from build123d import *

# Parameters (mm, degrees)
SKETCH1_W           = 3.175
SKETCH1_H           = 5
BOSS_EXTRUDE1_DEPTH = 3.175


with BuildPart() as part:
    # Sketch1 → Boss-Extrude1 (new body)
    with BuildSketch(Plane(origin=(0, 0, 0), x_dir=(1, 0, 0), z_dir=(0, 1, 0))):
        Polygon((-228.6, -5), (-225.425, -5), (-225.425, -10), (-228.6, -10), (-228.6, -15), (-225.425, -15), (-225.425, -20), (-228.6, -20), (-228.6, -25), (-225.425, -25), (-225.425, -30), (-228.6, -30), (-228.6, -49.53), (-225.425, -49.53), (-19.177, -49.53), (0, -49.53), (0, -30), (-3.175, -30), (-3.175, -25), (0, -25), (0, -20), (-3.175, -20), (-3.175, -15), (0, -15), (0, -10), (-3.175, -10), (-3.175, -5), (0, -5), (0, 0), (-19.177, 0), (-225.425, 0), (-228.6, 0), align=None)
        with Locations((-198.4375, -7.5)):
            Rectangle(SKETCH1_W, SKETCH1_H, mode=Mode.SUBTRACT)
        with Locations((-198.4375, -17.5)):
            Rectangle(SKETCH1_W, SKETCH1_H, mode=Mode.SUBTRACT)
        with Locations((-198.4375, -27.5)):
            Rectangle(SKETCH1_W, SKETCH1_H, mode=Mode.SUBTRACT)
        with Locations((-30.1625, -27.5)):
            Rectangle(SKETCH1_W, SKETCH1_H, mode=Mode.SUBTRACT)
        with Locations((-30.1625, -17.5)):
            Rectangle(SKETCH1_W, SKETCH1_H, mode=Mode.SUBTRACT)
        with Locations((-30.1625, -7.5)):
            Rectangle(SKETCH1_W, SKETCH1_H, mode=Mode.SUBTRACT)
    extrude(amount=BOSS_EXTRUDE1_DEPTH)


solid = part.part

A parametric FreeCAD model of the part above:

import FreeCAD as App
import Part
import Sketcher
from FreeCAD import Vector
Q = App.Units.Quantity


def add_polygon(sketch, points):
    """Adds a closed chain of lines whose ends are joined by coincident constraints."""
    first, n = sketch.GeometryCount, len(points)
    for a, b in zip(points, points[1:] + points[:1]):
        sketch.addGeometry(Part.LineSegment(App.Vector(*a, 0), App.Vector(*b, 0)), False)
    for i in range(n):
        sketch.addConstraint(Sketcher.Constraint("Coincident", first + i, 2, first + (i + 1) % n, 1))

doc = App.newDocument("Part")
params = doc.addObject("Spreadsheet::Sheet", "Params")
for row, (alias, value) in enumerate([
    ("sketch1_width", "9 in"),
    ("sketch1_width2", "0.125 in"),
    ("pad1_length", "0.125 in"),
], start=1):
    params.set(f"A{row}", alias)
    params.set(f"B{row}", "=" + value)
    params.setAlias(f"B{row}", alias)

body = doc.addObject("PartDesign::Body", "Body")

# Sketch on XZ plane
sketch1 = body.newObject("Sketcher::SketchObject", "Sketch")
sketch1.AttachmentSupport = (doc.getObject("XZ_Plane"), [""])
sketch1.MapMode = "FlatFace"
add_polygon(sketch1, [(-228.6, 5), (-225.4, 5), (-225.4, 10), (-228.6, 10), (-228.6, 15), (-225.4, 15), (-225.4, 20), (-228.6, 20), (-228.6, 25), (-225.4, 25), (-225.4, 30), (-228.6, 30), (-228.6, 49.5), (0, 49.5), (0, 30), (-3.2, 30), (-3.2, 25), (0, 25), (0, 20), (-3.2, 20), (-3.2, 15), (0, 15), (0, 10), (-3.2, 10), (-3.2, 5), (0, 5), (0, 0), (-228.6, 0)])  # lines 0-27
add_polygon(sketch1, [(-196.8, 30), (-200, 30), (-200, 25), (-196.8, 25)])  # lines 28-31
add_polygon(sketch1, [(-28.6, 30), (-31.8, 30), (-31.8, 25), (-28.6, 25)])  # lines 32-35
add_polygon(sketch1, [(-196.8, 20), (-200, 20), (-200, 15), (-196.8, 15)])  # lines 36-39
add_polygon(sketch1, [(-196.8, 10), (-200, 10), (-200, 5), (-196.8, 5)])  # lines 40-43
add_polygon(sketch1, [(-28.6, 20), (-31.8, 20), (-31.8, 15), (-28.6, 15)])  # lines 44-47
add_polygon(sketch1, [(-28.6, 10), (-31.8, 10), (-31.8, 5), (-28.6, 5)])  # lines 48-51
sketch1.addConstraint([
    Sketcher.Constraint("Horizontal", 0),
    Sketcher.Constraint("Vertical", 1),
    Sketcher.Constraint("Horizontal", 2),
    Sketcher.Constraint("Vertical", 3),
    Sketcher.Constraint("Horizontal", 4),
    Sketcher.Constraint("Vertical", 5),
    Sketcher.Constraint("Horizontal", 6),
    Sketcher.Constraint("Vertical", 7),
    Sketcher.Constraint("Horizontal", 8),
    Sketcher.Constraint("Vertical", 9),
    Sketcher.Constraint("Horizontal", 10),
    Sketcher.Constraint("Vertical", 11),
    Sketcher.Constraint("Horizontal", 12),
    Sketcher.Constraint("Vertical", 13),
    Sketcher.Constraint("Horizontal", 14),
    Sketcher.Constraint("Vertical", 15),
    Sketcher.Constraint("Horizontal", 16),
    Sketcher.Constraint("Vertical", 17),
    Sketcher.Constraint("Horizontal", 18),
    Sketcher.Constraint("Vertical", 19),
    Sketcher.Constraint("Horizontal", 20),
    Sketcher.Constraint("Vertical", 21),
    Sketcher.Constraint("Horizontal", 22),
    Sketcher.Constraint("Vertical", 23),
    Sketcher.Constraint("Horizontal", 24),
    Sketcher.Constraint("Vertical", 25),
    Sketcher.Constraint("Horizontal", 26),
    Sketcher.Constraint("Vertical", 27),
    Sketcher.Constraint("Horizontal", 28),
    Sketcher.Constraint("Vertical", 29),
    Sketcher.Constraint("Horizontal", 30),
    Sketcher.Constraint("Vertical", 31),
    Sketcher.Constraint("Horizontal", 32),
    Sketcher.Constraint("Vertical", 33),
    Sketcher.Constraint("Horizontal", 34),
    Sketcher.Constraint("Vertical", 35),
    Sketcher.Constraint("Horizontal", 36),
    Sketcher.Constraint("Vertical", 37),
    Sketcher.Constraint("Horizontal", 38),
    Sketcher.Constraint("Vertical", 39),
    Sketcher.Constraint("Horizontal", 40),
    Sketcher.Constraint("Vertical", 41),
    Sketcher.Constraint("Horizontal", 42),
    Sketcher.Constraint("Vertical", 43),
    Sketcher.Constraint("Horizontal", 44),
    Sketcher.Constraint("Vertical", 45),
    Sketcher.Constraint("Horizontal", 46),
    Sketcher.Constraint("Vertical", 47),
    Sketcher.Constraint("Horizontal", 48),
    Sketcher.Constraint("Vertical", 49),
    Sketcher.Constraint("Horizontal", 50),
    Sketcher.Constraint("Vertical", 51),
    Sketcher.Constraint("Coincident", 25, 2, -1, 1),
    Sketcher.Constraint("PointOnObject", 12, 2, -2),
    Sketcher.Constraint("PointOnObject", 16, 2, -2),
    Sketcher.Constraint("PointOnObject", 20, 2, -2),
    Sketcher.Constraint("Horizontal", 10, 2, 13, 2),
    Sketcher.Constraint("Horizontal", 8, 2, 15, 2),
    Sketcher.Constraint("Horizontal", 6, 2, 17, 2),
    Sketcher.Constraint("Horizontal", 4, 2, 19, 2),
    Sketcher.Constraint("Horizontal", 2, 2, 21, 2),
    Sketcher.Constraint("Horizontal", 0, 2, 23, 2),
    Sketcher.Constraint("Horizontal", 14, 2, 28, 2),
    Sketcher.Constraint("Horizontal", 16, 2, 29, 2),
    Sketcher.Constraint("Horizontal", 31, 2, 32, 2),
    Sketcher.Constraint("Horizontal", 30, 2, 33, 2),
    Sketcher.Constraint("Horizontal", 18, 2, 36, 2),
    Sketcher.Constraint("Horizontal", 20, 2, 37, 2),
    Sketcher.Constraint("Horizontal", 22, 2, 40, 2),
    Sketcher.Constraint("Horizontal", 27, 2, 41, 2),
    Sketcher.Constraint("Horizontal", 39, 2, 44, 2),
    Sketcher.Constraint("Horizontal", 38, 2, 45, 2),
    Sketcher.Constraint("Horizontal", 43, 2, 48, 2),
    Sketcher.Constraint("Horizontal", 42, 2, 49, 2),
    Sketcher.Constraint("Vertical", 1, 2, 4, 2),
    Sketcher.Constraint("Vertical", 3, 2, 6, 2),
    Sketcher.Constraint("Vertical", 5, 2, 8, 2),
    Sketcher.Constraint("Vertical", 7, 2, 10, 2),
    Sketcher.Constraint("Vertical", 15, 2, 18, 2),
    Sketcher.Constraint("Vertical", 19, 2, 22, 2),
    Sketcher.Constraint("Vertical", 11, 2, 26, 2),
    Sketcher.Constraint("Vertical", 29, 2, 36, 2),
    Sketcher.Constraint("Vertical", 31, 2, 38, 2),
    Sketcher.Constraint("Vertical", 37, 2, 40, 2),
    Sketcher.Constraint("Vertical", 39, 2, 42, 2),
    Sketcher.Constraint("Vertical", 33, 2, 44, 2),
    Sketcher.Constraint("Vertical", 35, 2, 46, 2),
    Sketcher.Constraint("Vertical", 45, 2, 48, 2),
    Sketcher.Constraint("Vertical", 47, 2, 50, 2),
    Sketcher.Constraint("Equal", 10, 14),
    Sketcher.Constraint("Equal", 24, 28),
    Sketcher.Constraint("Equal", 30, 32),
    Sketcher.Constraint("Equal", 1, 3),
    Sketcher.Constraint("Equal", 3, 5),
    Sketcher.Constraint("Equal", 5, 7),
    Sketcher.Constraint("Equal", 7, 9),
    Sketcher.Constraint("Equal", 23, 25),
    Sketcher.Constraint("DistanceX", 12, 1, 12, 2, Q("9 in")),
    Sketcher.Constraint("DistanceX", 9, 2, 28, 2, Q("1 in")),
    Sketcher.Constraint("DistanceX", 34, 2, 15, 2, Q("1 in")),
    Sketcher.Constraint("DistanceX", 0, 1, 0, 2, Q("0.125 in")),
    Sketcher.Constraint("DistanceY", -1, 1, 11, 2, Q("1.95 in")),
    Sketcher.Constraint("DistanceY", 1, 1, 1, 2, Q("5 mm")),
])
sketch1.setExpression("Constraints[149]", "Params.sketch1_width")
sketch1.setExpression("Constraints[152]", "Params.sketch1_width2")
pad1 = body.newObject("PartDesign::Pad", "Pad")
pad1.Profile = sketch1
pad1.setExpression("Length", "Params.pad1_length")
pad1.Reversed = True

doc.recompute()
